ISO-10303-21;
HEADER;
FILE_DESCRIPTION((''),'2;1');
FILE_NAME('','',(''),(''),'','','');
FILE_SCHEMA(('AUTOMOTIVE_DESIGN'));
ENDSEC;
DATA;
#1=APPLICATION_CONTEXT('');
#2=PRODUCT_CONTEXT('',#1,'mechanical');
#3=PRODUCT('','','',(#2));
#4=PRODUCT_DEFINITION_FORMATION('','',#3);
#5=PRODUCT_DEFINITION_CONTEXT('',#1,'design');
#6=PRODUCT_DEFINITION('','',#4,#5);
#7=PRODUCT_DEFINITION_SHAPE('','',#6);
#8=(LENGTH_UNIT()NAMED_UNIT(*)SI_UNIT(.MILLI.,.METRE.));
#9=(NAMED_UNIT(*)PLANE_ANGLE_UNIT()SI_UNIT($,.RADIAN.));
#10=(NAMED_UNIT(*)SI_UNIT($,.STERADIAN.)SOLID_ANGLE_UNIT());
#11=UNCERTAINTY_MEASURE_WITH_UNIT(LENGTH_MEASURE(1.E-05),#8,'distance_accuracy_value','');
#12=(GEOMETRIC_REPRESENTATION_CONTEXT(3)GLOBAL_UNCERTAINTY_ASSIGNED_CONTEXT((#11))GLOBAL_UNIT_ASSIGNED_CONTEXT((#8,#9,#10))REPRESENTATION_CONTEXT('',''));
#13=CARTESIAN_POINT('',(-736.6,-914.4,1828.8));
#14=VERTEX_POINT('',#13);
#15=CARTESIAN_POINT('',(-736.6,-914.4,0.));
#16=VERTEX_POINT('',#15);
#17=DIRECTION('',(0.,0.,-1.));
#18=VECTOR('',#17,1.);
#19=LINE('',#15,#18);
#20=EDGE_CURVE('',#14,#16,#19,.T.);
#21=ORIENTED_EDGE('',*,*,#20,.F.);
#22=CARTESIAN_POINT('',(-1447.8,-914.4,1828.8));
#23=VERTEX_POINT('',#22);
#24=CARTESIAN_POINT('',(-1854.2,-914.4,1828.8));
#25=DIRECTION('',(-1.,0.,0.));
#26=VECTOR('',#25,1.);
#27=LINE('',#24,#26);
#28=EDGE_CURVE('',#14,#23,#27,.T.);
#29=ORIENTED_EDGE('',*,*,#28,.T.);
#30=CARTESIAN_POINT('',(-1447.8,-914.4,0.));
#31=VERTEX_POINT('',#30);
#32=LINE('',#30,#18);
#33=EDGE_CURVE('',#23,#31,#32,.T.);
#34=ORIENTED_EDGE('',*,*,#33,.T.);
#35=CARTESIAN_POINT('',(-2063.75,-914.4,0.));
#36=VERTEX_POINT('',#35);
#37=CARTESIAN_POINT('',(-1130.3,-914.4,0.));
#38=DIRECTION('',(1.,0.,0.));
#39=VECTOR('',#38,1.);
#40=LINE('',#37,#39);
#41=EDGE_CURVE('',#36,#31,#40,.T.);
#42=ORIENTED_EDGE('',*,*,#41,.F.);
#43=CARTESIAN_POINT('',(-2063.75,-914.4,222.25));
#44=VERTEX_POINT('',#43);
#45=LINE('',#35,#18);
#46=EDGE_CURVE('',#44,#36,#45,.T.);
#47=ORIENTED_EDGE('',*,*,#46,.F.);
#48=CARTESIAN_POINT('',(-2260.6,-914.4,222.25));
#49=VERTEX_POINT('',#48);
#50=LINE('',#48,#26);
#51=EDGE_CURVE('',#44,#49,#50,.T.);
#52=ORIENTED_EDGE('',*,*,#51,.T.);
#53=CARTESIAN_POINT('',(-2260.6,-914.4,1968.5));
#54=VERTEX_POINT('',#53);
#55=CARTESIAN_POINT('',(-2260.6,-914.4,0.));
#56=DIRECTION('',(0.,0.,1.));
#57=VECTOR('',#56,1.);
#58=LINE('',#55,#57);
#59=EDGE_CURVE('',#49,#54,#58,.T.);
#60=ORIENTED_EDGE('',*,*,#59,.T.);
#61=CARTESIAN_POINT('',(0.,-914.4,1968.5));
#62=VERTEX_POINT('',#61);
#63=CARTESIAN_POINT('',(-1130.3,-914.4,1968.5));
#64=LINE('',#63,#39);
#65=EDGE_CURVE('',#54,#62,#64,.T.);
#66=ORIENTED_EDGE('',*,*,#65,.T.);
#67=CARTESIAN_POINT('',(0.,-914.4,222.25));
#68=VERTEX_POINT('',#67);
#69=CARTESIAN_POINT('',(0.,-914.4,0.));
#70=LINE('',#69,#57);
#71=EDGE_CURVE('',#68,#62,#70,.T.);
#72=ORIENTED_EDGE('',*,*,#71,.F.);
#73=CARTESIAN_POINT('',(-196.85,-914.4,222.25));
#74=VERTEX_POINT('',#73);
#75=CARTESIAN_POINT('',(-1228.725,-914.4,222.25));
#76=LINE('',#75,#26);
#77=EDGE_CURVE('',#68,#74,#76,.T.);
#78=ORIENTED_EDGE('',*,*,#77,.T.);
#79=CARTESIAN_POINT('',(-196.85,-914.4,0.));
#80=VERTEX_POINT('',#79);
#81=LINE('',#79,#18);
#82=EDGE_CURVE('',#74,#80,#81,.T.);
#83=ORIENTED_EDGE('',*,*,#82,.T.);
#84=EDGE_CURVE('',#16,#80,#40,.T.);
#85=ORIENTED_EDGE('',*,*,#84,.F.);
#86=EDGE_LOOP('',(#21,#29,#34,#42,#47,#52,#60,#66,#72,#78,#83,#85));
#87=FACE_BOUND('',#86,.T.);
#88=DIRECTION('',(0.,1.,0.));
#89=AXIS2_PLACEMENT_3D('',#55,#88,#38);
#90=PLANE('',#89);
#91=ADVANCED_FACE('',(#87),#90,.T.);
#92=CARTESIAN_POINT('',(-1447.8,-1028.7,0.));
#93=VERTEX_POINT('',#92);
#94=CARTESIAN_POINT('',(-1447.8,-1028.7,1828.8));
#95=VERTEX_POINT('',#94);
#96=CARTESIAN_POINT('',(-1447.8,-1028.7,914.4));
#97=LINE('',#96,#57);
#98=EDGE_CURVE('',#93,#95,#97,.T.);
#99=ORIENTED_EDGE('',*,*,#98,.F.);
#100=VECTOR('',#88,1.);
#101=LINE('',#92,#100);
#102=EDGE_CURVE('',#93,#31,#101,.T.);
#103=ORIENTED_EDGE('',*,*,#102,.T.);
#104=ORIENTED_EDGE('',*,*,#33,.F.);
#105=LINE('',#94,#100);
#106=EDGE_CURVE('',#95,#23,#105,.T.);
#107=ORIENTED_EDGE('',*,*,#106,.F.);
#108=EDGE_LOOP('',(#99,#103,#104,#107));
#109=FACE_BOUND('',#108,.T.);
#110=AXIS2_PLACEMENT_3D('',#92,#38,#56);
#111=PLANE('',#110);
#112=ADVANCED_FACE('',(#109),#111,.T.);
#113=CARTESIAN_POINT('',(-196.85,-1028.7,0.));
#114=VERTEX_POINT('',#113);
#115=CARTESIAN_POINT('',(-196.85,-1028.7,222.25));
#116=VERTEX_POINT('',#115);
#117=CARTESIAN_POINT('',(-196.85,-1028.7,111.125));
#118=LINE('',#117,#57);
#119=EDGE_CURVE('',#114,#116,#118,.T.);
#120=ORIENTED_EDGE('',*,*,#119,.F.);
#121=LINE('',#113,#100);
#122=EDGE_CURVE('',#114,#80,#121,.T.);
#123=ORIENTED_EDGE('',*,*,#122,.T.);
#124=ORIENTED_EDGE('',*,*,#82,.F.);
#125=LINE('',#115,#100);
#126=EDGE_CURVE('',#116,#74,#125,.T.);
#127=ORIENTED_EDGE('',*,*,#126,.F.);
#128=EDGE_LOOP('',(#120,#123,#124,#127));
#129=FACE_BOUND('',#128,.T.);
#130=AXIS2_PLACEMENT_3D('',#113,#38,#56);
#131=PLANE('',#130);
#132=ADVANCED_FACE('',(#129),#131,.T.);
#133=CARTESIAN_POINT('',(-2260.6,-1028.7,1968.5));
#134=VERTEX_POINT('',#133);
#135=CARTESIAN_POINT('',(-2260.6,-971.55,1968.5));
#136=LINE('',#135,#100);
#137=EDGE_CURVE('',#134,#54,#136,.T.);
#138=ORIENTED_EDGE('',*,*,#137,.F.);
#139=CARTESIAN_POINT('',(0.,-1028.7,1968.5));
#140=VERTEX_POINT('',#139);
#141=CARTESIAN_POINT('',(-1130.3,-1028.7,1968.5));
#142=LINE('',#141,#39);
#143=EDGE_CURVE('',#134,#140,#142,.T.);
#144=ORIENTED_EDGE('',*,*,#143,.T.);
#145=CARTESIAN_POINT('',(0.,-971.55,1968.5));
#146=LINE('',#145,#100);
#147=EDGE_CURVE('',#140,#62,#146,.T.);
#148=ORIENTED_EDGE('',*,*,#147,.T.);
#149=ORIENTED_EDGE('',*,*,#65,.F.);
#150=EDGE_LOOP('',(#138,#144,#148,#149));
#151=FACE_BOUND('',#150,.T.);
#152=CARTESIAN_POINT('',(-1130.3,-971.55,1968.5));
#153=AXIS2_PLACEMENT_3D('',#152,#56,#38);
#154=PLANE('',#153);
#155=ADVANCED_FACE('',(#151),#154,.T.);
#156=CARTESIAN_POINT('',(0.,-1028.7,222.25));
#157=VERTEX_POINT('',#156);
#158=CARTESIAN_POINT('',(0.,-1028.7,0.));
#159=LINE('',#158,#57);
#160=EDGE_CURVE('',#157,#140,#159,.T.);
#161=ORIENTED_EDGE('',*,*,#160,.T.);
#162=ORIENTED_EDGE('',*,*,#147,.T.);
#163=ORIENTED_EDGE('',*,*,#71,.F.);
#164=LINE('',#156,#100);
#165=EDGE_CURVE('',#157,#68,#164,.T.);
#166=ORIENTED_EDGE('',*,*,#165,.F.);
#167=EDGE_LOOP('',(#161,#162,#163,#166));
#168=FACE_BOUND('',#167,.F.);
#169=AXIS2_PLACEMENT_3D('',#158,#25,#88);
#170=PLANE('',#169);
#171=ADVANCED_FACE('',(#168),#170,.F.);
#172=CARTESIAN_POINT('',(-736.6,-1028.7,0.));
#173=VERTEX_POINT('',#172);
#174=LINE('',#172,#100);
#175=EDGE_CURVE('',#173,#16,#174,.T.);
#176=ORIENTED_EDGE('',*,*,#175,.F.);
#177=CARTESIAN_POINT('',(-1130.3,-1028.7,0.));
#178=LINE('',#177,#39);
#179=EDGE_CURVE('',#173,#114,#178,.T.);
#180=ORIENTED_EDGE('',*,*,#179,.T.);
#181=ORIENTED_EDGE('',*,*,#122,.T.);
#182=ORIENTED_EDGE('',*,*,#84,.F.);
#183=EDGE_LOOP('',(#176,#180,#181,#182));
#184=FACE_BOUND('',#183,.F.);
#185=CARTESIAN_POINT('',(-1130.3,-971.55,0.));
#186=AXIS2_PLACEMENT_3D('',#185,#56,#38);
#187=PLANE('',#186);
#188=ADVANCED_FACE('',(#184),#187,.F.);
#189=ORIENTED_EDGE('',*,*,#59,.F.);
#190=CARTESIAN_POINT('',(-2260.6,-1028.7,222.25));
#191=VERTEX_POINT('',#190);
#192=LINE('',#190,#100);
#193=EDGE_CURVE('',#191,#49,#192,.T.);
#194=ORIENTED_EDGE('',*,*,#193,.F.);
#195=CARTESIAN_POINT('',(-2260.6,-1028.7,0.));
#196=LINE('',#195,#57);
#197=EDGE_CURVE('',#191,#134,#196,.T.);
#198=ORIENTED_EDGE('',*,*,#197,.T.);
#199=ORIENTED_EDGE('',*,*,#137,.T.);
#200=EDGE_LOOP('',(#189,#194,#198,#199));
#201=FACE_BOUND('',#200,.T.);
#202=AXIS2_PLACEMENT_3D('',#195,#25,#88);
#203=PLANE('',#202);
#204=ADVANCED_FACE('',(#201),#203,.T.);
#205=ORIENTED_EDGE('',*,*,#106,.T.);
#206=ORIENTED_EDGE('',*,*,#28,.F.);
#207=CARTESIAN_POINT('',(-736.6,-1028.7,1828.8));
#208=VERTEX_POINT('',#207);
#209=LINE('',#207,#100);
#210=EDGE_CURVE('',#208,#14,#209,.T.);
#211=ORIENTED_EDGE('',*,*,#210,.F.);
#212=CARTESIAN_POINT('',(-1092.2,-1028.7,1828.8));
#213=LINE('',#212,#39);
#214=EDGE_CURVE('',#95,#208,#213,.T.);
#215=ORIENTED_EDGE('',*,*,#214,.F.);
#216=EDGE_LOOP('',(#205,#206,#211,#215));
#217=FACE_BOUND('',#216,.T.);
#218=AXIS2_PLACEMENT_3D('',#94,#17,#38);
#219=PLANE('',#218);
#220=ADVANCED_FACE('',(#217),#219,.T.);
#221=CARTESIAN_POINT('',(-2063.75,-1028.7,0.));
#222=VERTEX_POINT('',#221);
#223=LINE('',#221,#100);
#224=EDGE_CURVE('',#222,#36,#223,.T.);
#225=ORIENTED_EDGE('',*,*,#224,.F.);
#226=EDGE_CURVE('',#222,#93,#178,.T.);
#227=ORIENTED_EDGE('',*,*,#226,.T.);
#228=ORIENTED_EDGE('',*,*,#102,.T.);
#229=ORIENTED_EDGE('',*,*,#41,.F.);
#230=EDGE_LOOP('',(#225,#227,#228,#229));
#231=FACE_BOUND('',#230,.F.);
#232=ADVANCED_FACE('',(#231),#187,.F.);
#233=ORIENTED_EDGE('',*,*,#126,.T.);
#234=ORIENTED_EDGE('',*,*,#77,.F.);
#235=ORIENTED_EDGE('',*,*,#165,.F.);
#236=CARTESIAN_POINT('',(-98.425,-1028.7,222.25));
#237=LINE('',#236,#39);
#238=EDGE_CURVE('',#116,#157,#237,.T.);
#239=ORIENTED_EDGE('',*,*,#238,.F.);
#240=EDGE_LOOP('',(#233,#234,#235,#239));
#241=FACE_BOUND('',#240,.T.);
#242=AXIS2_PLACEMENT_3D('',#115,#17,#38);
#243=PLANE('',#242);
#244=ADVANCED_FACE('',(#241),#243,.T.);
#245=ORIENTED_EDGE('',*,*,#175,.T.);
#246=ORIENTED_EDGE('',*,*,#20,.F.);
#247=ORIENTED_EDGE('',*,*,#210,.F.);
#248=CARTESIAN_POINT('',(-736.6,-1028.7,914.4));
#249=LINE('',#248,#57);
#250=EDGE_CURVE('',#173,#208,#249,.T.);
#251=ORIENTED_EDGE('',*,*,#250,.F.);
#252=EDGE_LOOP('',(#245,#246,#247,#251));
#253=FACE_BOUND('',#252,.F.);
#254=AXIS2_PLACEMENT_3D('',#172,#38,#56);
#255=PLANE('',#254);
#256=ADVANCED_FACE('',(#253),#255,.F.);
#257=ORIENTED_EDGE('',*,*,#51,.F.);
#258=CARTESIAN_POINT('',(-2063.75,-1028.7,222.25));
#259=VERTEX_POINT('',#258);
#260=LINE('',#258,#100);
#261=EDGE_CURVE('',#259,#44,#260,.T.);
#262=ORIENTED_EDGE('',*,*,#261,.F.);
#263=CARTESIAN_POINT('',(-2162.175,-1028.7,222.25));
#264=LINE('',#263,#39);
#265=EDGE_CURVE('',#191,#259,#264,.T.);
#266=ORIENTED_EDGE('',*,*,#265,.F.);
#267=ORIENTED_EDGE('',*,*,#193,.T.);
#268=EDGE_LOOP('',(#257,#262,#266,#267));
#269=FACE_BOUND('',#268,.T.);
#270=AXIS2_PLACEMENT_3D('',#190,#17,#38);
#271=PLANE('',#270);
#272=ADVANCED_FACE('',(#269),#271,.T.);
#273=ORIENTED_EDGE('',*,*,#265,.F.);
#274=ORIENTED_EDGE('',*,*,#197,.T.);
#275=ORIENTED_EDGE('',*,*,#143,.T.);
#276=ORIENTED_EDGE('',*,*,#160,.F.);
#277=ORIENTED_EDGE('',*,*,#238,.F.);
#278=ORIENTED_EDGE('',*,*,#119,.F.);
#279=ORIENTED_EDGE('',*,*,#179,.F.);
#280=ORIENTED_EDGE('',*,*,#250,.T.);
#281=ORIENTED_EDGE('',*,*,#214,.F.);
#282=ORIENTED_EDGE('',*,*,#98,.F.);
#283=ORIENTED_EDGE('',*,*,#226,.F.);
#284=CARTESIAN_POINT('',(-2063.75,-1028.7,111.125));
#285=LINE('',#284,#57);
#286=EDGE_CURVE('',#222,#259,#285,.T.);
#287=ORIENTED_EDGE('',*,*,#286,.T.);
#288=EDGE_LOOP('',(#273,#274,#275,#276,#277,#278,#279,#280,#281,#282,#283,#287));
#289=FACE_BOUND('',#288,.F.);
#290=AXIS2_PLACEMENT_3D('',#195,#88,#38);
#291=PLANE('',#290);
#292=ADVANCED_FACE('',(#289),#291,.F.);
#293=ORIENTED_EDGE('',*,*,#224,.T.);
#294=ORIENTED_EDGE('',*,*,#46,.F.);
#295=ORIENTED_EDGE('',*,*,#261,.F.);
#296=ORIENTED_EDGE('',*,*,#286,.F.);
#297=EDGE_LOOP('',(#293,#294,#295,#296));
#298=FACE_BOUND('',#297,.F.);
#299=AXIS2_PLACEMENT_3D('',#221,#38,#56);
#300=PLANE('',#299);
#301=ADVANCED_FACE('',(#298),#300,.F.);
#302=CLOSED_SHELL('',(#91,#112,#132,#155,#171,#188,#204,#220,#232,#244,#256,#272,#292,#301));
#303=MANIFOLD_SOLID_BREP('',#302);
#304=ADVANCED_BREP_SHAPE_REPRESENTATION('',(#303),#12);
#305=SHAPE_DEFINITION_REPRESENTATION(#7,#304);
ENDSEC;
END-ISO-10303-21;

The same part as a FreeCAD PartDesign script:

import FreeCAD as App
import Part
import Sketcher
Q = App.Units.Quantity

doc = App.newDocument("Part")
body = doc.addObject("PartDesign::Body", "Body")

sketch1 = body.newObject("Sketcher::SketchObject", "Sketch")
sketch1.AttachmentSupport = (doc.getObject("XY_Plane"), [""])
sketch1.MapMode = "FlatFace"
sketch1.addGeometry([
    Part.LineSegment(App.Vector(-2261, -914, 0), App.Vector(-2261, -1029, 0)),
    Part.LineSegment(App.Vector(-2261, -1029, 0), App.Vector(0, -1029, 0)),
    Part.LineSegment(App.Vector(0, -1029, 0), App.Vector(0, -914, 0)),
    Part.LineSegment(App.Vector(0, -914, 0), App.Vector(-2261, -914, 0)),
], False)
sketch1.addConstraint([
    Sketcher.Constraint("Coincident", 0, 2, 1, 1),
    Sketcher.Constraint("Coincident", 1, 2, 2, 1),
    Sketcher.Constraint("Coincident", 2, 2, 3, 1),
    Sketcher.Constraint("Coincident", 3, 2, 0, 1),
    Sketcher.Constraint("Vertical", 0),
    Sketcher.Constraint("Horizontal", 1),
    Sketcher.Constraint("Vertical", 2),
    Sketcher.Constraint("Horizontal", 3),
    Sketcher.Constraint("PointOnObject", 1, 2, -2),
    Sketcher.Constraint("DistanceX", 1, 1, 1, 2, Q("89 in")),
    Sketcher.Constraint("DistanceY", 0, 2, 0, 1, Q("4.5 in")),
    Sketcher.Constraint("DistanceY", 2, 2, -1, 1, Q("36 in")),
])
pad1 = body.newObject("PartDesign::Pad", "Pad")
pad1.Profile = sketch1
pad1.Length = Q("77.5 in")

sketch2 = body.newObject("Sketcher::SketchObject", "Sketch001")
sketch2.AttachmentSupport = (doc.getObject("XZ_Plane"), [""])
sketch2.MapMode = "FlatFace"
sketch2.AttachmentOffset = App.Placement(App.Vector(0, 0, 40.5 * 25.4), App.Rotation())
sketch2.addGeometry([
    Part.LineSegment(App.Vector(-1448, 1829, 0), App.Vector(-1448, 0, 0)),
    Part.LineSegment(App.Vector(-1448, 0, 0), App.Vector(-737, 0, 0)),
    Part.LineSegment(App.Vector(-737, 0, 0), App.Vector(-737, 1829, 0)),
    Part.LineSegment(App.Vector(-737, 1829, 0), App.Vector(-1448, 1829, 0)),
], False)
sketch2.addConstraint([
    Sketcher.Constraint("Coincident", 0, 2, 1, 1),
    Sketcher.Constraint("Coincident", 1, 2, 2, 1),
    Sketcher.Constraint("Coincident", 2, 2, 3, 1),
    Sketcher.Constraint("Coincident", 3, 2, 0, 1),
    Sketcher.Constraint("Vertical", 0),
    Sketcher.Constraint("Horizontal", 1),
    Sketcher.Constraint("Vertical", 2),
    Sketcher.Constraint("Horizontal", 3),
    Sketcher.Constraint("PointOnObject", 0, 2, -1),
    Sketcher.Constraint("DistanceX", 1, 1, 1, 2, Q("28 in")),
    Sketcher.Constraint("DistanceY", 0, 2, 0, 1, Q("72 in")),
    Sketcher.Constraint("DistanceX", 0, 2, -1, 1, Q("57 in")),
])
pocket1 = body.newObject("PartDesign::Pocket", "Pocket")
pocket1.Profile = sketch2
pocket1.Type = "ThroughAll"

sketch3 = body.newObject("Sketcher::SketchObject", "Sketch002")
sketch3.AttachmentSupport = (doc.getObject("XZ_Plane"), [""])
sketch3.MapMode = "FlatFace"
sketch3.AttachmentOffset = App.Placement(App.Vector(0, 0, 40.5 * 25.4), App.Rotation())
sketch3.addGeometry([
    Part.LineSegment(App.Vector(-2261, 222, 0), App.Vector(-2261, 0, 0)),
    Part.LineSegment(App.Vector(-2261, 0, 0), App.Vector(-2064, 0, 0)),
    Part.LineSegment(App.Vector(-2064, 0, 0), App.Vector(-2064, 222, 0)),
    Part.LineSegment(App.Vector(-2064, 222, 0), App.Vector(-2261, 222, 0)),
    Part.LineSegment(App.Vector(-197, 222, 0), App.Vector(-197, 0, 0)),
    Part.LineSegment(App.Vector(-197, 0, 0), App.Vector(0, 0, 0)),
    Part.LineSegment(App.Vector(0, 0, 0), App.Vector(0, 222, 0)),
    Part.LineSegment(App.Vector(0, 222, 0), App.Vector(-197, 222, 0)),
], False)
sketch3.addConstraint([
    Sketcher.Constraint("Coincident", 0, 2, 1, 1),
    Sketcher.Constraint("Coincident", 1, 2, 2, 1),
    Sketcher.Constraint("Coincident", 2, 2, 3, 1),
    Sketcher.Constraint("Coincident", 3, 2, 0, 1),
    Sketcher.Constraint("Coincident", 4, 2, 5, 1),
    Sketcher.Constraint("Coincident", 5, 2, 6, 1),
    Sketcher.Constraint("Coincident", 6, 2, 7, 1),
    Sketcher.Constraint("Coincident", 7, 2, 4, 1),
    Sketcher.Constraint("Vertical", 0),
    Sketcher.Constraint("Horizontal", 1),
    Sketcher.Constraint("Vertical", 2),
    Sketcher.Constraint("Horizontal", 3),
    Sketcher.Constraint("Vertical", 4),
    Sketcher.Constraint("Horizontal", 5),
    Sketcher.Constraint("Vertical", 6),
    Sketcher.Constraint("Horizontal", 7),
    Sketcher.Constraint("Coincident", 5, 2, -1, 1),
    Sketcher.Constraint("PointOnObject", 0, 2, -1),
    Sketcher.Constraint("Horizontal", 3, 2, 6, 2),
    Sketcher.Constraint("Equal", 3, 5),
    Sketcher.Constraint("DistanceX", 0, 2, -1, 1, Q("89 in")),
    Sketcher.Constraint("DistanceX", 1, 1, 1, 2, Q("7.75 in")),
    Sketcher.Constraint("DistanceY", 0, 2, 0, 1, Q("8.75 in")),
])
pocket2 = body.newObject("PartDesign::Pocket", "Pocket001")
pocket2.Profile = sketch3
pocket2.Type = "ThroughAll"

doc.recompute()
